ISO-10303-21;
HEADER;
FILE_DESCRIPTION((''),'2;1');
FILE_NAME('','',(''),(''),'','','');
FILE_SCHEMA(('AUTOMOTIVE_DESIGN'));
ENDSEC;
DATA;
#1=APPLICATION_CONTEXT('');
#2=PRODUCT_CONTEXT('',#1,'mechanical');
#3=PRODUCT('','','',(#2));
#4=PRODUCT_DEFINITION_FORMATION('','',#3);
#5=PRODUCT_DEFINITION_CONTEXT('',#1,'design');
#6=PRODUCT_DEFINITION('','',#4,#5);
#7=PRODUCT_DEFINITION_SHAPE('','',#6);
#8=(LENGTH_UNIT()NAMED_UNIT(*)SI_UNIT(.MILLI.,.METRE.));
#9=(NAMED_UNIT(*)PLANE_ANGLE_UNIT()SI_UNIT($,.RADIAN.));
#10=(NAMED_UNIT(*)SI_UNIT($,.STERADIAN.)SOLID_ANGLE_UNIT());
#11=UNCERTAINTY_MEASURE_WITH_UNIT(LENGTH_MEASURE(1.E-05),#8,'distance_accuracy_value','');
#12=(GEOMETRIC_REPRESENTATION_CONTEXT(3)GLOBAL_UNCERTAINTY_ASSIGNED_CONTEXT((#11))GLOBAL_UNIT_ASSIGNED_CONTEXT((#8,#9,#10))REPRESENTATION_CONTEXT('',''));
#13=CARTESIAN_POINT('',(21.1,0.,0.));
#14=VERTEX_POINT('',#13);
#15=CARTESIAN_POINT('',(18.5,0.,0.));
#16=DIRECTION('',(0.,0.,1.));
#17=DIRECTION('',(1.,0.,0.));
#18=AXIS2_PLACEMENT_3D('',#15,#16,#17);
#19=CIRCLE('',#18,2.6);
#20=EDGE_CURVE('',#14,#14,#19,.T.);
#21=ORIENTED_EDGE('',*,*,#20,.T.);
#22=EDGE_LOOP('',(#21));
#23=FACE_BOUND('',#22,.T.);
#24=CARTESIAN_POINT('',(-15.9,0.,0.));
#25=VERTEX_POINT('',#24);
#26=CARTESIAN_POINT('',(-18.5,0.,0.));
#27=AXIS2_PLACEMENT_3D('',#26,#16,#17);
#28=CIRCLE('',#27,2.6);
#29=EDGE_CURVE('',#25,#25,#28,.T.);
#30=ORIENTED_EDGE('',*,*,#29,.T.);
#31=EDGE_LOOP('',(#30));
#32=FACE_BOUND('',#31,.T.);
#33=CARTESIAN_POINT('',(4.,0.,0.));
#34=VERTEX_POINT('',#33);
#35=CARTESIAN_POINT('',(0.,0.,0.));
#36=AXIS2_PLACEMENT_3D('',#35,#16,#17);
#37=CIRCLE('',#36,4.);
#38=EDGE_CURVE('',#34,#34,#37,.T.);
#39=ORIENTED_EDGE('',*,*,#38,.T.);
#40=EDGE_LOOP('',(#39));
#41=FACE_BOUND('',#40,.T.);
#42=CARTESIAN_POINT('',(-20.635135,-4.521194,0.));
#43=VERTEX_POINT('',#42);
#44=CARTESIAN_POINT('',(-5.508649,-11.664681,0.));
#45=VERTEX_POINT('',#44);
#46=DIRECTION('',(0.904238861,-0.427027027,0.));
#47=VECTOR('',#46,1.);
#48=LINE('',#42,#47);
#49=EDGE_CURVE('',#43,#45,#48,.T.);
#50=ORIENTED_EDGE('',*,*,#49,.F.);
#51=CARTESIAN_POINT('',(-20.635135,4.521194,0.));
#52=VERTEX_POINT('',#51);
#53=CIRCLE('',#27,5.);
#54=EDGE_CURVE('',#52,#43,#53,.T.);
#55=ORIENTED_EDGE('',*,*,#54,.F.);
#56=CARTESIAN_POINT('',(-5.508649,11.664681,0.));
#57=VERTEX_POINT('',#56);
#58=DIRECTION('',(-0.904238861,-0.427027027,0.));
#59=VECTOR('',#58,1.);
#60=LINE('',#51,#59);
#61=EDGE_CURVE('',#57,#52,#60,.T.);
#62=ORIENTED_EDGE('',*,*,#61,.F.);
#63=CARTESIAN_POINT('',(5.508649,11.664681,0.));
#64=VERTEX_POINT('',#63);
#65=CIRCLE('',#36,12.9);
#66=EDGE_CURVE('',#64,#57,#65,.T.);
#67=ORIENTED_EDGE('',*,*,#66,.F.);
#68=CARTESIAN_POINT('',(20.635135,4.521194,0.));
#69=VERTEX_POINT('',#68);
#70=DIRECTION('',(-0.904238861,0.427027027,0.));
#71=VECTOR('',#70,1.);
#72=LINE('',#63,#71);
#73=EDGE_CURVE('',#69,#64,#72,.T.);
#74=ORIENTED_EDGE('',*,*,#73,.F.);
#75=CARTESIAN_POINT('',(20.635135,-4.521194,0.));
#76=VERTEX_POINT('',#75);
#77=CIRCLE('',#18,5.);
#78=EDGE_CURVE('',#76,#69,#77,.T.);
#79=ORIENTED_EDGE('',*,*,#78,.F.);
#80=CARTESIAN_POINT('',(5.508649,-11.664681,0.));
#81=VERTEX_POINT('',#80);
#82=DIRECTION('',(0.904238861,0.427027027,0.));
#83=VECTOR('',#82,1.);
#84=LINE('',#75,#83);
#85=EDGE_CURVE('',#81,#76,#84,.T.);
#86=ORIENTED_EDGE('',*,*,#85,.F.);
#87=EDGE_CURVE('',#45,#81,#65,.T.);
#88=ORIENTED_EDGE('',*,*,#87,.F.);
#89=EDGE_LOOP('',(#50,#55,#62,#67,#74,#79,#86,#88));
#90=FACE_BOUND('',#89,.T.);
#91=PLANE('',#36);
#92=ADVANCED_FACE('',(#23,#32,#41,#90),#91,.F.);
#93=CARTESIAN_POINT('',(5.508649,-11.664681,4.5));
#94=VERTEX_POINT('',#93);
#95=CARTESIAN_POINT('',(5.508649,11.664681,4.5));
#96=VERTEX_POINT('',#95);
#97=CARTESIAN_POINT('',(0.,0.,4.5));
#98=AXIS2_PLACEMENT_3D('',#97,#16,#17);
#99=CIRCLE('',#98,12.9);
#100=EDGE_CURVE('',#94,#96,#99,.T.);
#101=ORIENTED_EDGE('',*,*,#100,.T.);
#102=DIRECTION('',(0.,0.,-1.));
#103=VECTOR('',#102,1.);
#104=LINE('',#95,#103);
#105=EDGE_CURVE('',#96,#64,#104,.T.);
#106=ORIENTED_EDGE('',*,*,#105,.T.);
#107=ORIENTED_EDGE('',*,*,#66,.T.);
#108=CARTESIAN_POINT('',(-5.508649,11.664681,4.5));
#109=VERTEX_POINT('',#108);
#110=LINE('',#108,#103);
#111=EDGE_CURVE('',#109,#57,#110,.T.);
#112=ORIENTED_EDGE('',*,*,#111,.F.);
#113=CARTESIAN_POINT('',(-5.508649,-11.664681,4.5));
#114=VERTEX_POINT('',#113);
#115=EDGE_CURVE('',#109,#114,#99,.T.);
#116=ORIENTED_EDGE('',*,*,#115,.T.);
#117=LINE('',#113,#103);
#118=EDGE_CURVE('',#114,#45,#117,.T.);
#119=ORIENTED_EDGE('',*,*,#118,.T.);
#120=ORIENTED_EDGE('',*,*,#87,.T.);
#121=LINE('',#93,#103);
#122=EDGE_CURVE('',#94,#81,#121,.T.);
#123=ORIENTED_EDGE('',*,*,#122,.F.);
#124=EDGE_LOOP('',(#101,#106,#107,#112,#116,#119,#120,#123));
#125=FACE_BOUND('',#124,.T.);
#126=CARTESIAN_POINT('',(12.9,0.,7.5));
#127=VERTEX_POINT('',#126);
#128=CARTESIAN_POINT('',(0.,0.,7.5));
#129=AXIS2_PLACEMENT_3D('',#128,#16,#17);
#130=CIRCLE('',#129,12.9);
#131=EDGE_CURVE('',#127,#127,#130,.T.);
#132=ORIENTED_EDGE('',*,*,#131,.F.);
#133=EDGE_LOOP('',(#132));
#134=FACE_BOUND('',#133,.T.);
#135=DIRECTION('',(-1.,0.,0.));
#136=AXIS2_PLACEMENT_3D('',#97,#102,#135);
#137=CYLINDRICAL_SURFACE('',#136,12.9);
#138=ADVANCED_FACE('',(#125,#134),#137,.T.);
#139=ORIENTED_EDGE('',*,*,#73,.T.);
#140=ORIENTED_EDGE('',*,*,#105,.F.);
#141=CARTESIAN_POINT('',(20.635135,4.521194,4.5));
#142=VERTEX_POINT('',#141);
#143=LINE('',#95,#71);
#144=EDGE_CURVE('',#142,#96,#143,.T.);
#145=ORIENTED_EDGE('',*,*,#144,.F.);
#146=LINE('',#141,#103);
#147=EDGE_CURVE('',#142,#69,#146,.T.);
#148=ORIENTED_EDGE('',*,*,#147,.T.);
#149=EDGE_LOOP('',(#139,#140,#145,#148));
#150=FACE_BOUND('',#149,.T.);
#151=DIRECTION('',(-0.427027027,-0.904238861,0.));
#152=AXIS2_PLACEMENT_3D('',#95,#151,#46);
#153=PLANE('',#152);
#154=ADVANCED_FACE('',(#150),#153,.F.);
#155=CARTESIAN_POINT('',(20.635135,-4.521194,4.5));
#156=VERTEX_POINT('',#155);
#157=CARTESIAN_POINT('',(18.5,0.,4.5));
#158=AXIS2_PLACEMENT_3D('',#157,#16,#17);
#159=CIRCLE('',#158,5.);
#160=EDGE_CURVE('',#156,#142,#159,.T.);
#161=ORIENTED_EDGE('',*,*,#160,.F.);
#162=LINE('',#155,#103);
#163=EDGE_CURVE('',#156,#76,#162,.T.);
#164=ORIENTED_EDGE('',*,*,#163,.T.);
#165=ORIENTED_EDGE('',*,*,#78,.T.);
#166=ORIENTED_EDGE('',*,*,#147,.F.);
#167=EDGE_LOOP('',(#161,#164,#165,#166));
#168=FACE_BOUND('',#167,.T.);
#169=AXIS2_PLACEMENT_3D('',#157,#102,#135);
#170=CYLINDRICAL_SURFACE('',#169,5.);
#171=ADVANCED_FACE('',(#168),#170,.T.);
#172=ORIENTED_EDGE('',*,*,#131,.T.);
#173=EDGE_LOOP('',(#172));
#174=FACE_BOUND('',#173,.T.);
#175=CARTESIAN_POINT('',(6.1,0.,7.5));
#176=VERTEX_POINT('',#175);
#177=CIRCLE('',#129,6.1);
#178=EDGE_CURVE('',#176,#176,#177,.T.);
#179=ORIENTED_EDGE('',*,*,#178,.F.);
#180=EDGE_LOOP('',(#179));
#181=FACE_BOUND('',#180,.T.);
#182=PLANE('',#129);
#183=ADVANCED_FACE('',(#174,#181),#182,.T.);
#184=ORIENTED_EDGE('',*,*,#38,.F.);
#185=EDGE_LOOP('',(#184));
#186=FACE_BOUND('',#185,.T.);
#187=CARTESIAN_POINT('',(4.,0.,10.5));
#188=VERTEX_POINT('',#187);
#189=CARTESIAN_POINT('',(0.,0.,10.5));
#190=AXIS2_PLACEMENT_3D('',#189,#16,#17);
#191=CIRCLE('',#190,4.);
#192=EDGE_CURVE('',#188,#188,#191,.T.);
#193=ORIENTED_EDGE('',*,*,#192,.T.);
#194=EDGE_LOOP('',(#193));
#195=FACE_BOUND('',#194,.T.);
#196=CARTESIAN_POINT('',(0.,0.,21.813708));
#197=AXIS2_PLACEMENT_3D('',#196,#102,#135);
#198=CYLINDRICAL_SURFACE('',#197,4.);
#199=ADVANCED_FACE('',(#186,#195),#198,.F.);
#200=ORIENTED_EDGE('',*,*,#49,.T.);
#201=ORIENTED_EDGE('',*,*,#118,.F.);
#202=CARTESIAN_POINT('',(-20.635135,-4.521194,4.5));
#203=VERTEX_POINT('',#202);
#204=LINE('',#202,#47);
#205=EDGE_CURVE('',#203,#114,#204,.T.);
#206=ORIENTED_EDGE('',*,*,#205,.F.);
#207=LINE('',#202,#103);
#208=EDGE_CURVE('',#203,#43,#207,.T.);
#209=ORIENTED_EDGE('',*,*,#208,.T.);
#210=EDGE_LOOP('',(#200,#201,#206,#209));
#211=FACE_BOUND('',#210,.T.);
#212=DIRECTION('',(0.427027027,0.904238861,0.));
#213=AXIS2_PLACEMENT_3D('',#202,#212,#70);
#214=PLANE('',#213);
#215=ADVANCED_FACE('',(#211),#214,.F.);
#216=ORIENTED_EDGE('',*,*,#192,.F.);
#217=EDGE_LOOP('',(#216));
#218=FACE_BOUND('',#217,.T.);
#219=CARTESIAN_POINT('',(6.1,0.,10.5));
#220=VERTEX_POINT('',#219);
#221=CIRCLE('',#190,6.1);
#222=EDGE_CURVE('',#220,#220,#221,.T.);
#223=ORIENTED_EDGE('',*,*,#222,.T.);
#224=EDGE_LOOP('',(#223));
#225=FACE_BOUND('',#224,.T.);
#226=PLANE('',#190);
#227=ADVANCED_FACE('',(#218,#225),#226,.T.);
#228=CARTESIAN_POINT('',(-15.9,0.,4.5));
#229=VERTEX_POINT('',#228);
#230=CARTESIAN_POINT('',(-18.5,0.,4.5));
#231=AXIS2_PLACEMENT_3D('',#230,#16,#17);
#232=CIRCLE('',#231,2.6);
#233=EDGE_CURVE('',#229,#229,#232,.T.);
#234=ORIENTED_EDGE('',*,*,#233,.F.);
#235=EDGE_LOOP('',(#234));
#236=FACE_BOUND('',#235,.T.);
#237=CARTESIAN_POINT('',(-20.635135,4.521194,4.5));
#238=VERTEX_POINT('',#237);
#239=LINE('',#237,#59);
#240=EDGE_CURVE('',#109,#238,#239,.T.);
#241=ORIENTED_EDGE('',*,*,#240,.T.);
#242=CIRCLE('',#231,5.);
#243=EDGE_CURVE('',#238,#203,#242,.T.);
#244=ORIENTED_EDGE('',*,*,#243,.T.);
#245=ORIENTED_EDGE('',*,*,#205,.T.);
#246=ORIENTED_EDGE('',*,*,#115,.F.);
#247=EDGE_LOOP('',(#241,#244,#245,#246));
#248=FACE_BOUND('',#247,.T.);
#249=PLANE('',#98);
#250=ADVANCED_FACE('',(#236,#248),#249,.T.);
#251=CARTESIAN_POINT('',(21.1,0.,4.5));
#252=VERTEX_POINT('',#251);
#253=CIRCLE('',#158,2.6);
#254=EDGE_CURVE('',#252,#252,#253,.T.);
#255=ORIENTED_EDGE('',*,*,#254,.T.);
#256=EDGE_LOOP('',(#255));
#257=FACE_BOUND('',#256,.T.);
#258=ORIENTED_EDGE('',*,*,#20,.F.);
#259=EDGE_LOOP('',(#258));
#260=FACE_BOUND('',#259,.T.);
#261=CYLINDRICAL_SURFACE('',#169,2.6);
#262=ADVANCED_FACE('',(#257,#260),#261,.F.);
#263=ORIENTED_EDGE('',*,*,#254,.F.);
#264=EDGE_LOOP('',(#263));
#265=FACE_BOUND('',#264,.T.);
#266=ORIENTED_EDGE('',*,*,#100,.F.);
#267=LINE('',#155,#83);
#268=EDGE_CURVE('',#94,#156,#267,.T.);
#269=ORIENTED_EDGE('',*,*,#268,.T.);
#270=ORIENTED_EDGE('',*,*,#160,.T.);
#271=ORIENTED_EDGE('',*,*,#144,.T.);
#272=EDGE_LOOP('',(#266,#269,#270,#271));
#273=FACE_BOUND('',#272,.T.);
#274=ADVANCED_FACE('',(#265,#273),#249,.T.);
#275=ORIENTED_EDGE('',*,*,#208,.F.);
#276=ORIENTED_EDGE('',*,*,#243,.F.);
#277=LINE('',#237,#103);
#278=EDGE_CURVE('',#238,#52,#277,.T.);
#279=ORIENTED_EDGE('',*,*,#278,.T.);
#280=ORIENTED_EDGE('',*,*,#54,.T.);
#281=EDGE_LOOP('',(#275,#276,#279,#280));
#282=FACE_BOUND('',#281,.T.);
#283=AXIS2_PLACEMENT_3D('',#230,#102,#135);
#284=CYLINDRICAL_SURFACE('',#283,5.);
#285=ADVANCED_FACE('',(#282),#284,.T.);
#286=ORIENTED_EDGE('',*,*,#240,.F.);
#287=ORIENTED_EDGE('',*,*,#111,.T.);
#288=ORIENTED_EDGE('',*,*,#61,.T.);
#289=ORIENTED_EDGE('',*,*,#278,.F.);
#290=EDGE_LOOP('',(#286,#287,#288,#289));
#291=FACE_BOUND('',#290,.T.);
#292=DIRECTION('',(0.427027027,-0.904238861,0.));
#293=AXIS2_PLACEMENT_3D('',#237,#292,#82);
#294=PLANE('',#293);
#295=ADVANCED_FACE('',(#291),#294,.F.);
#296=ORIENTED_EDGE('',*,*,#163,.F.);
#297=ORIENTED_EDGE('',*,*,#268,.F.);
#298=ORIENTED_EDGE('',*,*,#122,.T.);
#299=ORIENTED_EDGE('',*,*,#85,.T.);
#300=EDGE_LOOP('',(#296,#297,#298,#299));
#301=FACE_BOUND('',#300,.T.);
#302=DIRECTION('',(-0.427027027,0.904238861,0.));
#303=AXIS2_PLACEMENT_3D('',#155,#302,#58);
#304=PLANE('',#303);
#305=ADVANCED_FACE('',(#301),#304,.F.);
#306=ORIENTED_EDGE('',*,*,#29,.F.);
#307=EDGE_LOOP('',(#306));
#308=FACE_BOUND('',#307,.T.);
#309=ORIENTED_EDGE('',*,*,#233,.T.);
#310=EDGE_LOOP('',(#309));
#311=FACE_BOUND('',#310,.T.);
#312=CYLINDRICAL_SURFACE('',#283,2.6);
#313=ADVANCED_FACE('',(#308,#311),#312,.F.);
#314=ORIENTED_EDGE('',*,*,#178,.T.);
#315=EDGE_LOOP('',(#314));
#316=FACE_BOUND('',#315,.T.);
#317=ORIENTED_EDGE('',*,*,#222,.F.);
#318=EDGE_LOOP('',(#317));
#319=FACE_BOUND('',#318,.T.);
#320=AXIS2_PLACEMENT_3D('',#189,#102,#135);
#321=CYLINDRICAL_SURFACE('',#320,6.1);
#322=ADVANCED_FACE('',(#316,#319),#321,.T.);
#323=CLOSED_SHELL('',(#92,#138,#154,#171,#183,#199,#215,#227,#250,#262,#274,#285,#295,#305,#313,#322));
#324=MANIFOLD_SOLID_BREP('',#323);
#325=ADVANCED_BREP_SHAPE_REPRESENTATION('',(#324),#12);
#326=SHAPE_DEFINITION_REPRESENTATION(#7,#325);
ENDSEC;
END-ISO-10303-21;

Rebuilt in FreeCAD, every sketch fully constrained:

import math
import FreeCAD as App
import Part
import Sketcher
from FreeCAD import Vector

doc = App.newDocument("Part")
body = doc.addObject("PartDesign::Body", "Body")

# Sketch on XY plane
sketch1 = body.newObject("Sketcher::SketchObject", "Sketch")
sketch1.AttachmentSupport = (doc.getObject("XY_Plane"), [""])
sketch1.MapMode = "FlatFace"
sketch1.addGeometry([
    Part.LineSegment(Vector(-5.5, 11.7, 0), Vector(-20.6, 4.5, 0)),  # 0
    Part.ArcOfCircle(Part.Circle(Vector(-18.5, 0, 0), Vector(0, 0, 1), 5), math.radians(115), math.radians(245)),  # 1
    Part.LineSegment(Vector(-20.6, -4.5, 0), Vector(-5.5, -11.7, 0)),  # 2
    Part.ArcOfCircle(Part.Circle(Vector(0, 0, 0), Vector(0, 0, 1), 12.9), math.radians(-115), math.radians(-65)),  # 3
    Part.LineSegment(Vector(5.5, -11.7, 0), Vector(20.6, -4.5, 0)),  # 4
    Part.ArcOfCircle(Part.Circle(Vector(18.5, 0, 0), Vector(0, 0, 1), 5), math.radians(-65), math.radians(65)),  # 5
    Part.LineSegment(Vector(20.6, 4.5, 0), Vector(5.5, 11.7, 0)),  # 6
    Part.ArcOfCircle(Part.Circle(Vector(0, 0, 0), Vector(0, 0, 1), 12.9), math.radians(65), math.radians(115)),  # 7
    Part.Circle(Vector(18.5, 0, 0), Vector(0, 0, 1), 2.6),  # 8
    Part.Circle(Vector(-18.5, 0, 0), Vector(0, 0, 1), 2.6),  # 9
], False)
sketch1.addConstraint([
    Sketcher.Constraint("Tangent", 0, 2, 1, 1),
    Sketcher.Constraint("Tangent", 1, 2, 2, 1),
    Sketcher.Constraint("Tangent", 2, 2, 3, 1),
    Sketcher.Constraint("Tangent", 3, 2, 4, 1),
    Sketcher.Constraint("Tangent", 4, 2, 5, 1),
    Sketcher.Constraint("Tangent", 5, 2, 6, 1),
    Sketcher.Constraint("Tangent", 6, 2, 7, 1),
    Sketcher.Constraint("Tangent", 7, 2, 0, 1),
    Sketcher.Constraint("Coincident", 3, 3, -1, 1),
    Sketcher.Constraint("Coincident", 7, 3, -1, 1),
    Sketcher.Constraint("Coincident", 8, 3, 5, 3),
    Sketcher.Constraint("Coincident", 9, 3, 1, 3),
    Sketcher.Constraint("Equal", 1, 5),
    Sketcher.Constraint("Equal", 3, 7),
    Sketcher.Constraint("Equal", 8, 9),
    Sketcher.Constraint("Symmetric", 1, 3, 5, 3, -1, 1),
    Sketcher.Constraint("PointOnObject", 1, 3, -1),
    Sketcher.Constraint("Radius", 1, 5.0),
    Sketcher.Constraint("Diameter", 8, 5.2),
    Sketcher.Constraint("Radius", 3, 12.9),
    Sketcher.Constraint("DistanceX", 1, 3, 5, 3, 37.0),
])
pad1 = body.newObject("PartDesign::Pad", "Pad")
pad1.Profile = sketch1
pad1.Length = 4.5

# Sketch on XY plane
sketch2 = body.newObject("Sketcher::SketchObject", "Sketch001")
sketch2.AttachmentSupport = (doc.getObject("XY_Plane"), [""])
sketch2.MapMode = "FlatFace"
sketch2.AttachmentOffset = App.Placement(Vector(0, 0, 4.5), App.Rotation())
sketch2.addGeometry(Part.Circle(Vector(0, 0, 0), Vector(0, 0, 1), 13), False)
sketch2.addConstraint([
    Sketcher.Constraint("Coincident", 0, 3, -1, 1),
    Sketcher.Constraint("Diameter", 0, 25.8),
])
pad2 = body.newObject("PartDesign::Pad", "Pad001")
pad2.Profile = sketch2
pad2.Length = 3

# Sketch on XY plane
sketch3 = body.newObject("Sketcher::SketchObject", "Sketch002")
sketch3.AttachmentSupport = (doc.getObject("XY_Plane"), [""])
sketch3.MapMode = "FlatFace"
sketch3.AttachmentOffset = App.Placement(Vector(0, 0, 7.5), App.Rotation())
sketch3.addGeometry(Part.Circle(Vector(0, 0, 0), Vector(0, 0, 1), 6), False)
sketch3.addConstraint([
    Sketcher.Constraint("Coincident", 0, 3, -1, 1),
    Sketcher.Constraint("Diameter", 0, 12.2),
])
pad3 = body.newObject("PartDesign::Pad", "Pad002")
pad3.Profile = sketch3
pad3.Length = 3

# Sketch on XY plane
sketch4 = body.newObject("Sketcher::SketchObject", "Sketch003")
sketch4.AttachmentSupport = (doc.getObject("XY_Plane"), [""])
sketch4.MapMode = "FlatFace"
sketch4.addGeometry(Part.Circle(Vector(0, 0, 0), Vector(0, 0, 1), 4), False)
sketch4.addConstraint([
    Sketcher.Constraint("Coincident", 0, 3, -1, 1),
    Sketcher.Constraint("Diameter", 0, 8.0),
])
pocket1 = body.newObject("PartDesign::Pocket", "Pocket")
pocket1.Profile = sketch4
pocket1.Length = 10.5
pocket1.Reversed = True

doc.recompute()
